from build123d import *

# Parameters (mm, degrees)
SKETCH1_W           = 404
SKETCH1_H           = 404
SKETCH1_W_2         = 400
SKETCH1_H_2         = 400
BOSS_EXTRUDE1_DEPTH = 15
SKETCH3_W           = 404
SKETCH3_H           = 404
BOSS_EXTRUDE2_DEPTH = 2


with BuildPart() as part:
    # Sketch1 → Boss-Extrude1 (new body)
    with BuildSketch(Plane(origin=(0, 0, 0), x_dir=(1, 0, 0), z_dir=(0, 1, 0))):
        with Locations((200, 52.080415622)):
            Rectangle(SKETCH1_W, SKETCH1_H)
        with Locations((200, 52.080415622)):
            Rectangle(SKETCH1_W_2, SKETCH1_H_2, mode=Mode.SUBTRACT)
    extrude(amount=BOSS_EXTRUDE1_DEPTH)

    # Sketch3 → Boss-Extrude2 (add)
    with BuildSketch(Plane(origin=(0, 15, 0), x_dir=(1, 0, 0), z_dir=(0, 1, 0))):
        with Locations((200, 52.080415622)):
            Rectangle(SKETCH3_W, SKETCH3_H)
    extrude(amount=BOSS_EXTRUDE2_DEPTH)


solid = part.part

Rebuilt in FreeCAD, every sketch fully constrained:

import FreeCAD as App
import Part
import Sketcher
from FreeCAD import Vector
Q = App.Units.Quantity

doc = App.newDocument("Part")
body = doc.addObject("PartDesign::Body", "Body")

# Sketch on XZ plane
sketch1 = body.newObject("Sketcher::SketchObject", "Sketch")
sketch1.AttachmentSupport = (doc.getObject("XZ_Plane"), [""])
sketch1.MapMode = "FlatFace"
sketch1.addGeometry(Part.LineSegment(Vector(-2, -254, 0), Vector(-2, 150, 0)), False)
sketch1.addGeometry(Part.LineSegment(Vector(-2, 150, 0), Vector(402, 150, 0)), False)
sketch1.addGeometry(Part.LineSegment(Vector(402, 150, 0), Vector(402, -254, 0)), False)
sketch1.addGeometry(Part.LineSegment(Vector(402, -254, 0), Vector(-2, -254, 0)), False)
sketch1.addGeometry(Part.LineSegment(Vector(400, 148, 0), Vector(0, 148, 0)), False)
sketch1.addGeometry(Part.LineSegment(Vector(0, 148, 0), Vector(0, -252, 0)), False)
sketch1.addGeometry(Part.LineSegment(Vector(0, -252, 0), Vector(400, -252, 0)), False)
sketch1.addGeometry(Part.LineSegment(Vector(400, -252, 0), Vector(400, 148, 0)), False)
sketch1.addConstraint(Sketcher.Constraint("Coincident", 0, 2, 1, 1))
sketch1.addConstraint(Sketcher.Constraint("Coincident", 1, 2, 2, 1))
sketch1.addConstraint(Sketcher.Constraint("Coincident", 2, 2, 3, 1))
sketch1.addConstraint(Sketcher.Constraint("Coincident", 3, 2, 0, 1))
sketch1.addConstraint(Sketcher.Constraint("Coincident", 4, 2, 5, 1))
sketch1.addConstraint(Sketcher.Constraint("Coincident", 5, 2, 6, 1))
sketch1.addConstraint(Sketcher.Constraint("Coincident", 6, 2, 7, 1))
sketch1.addConstraint(Sketcher.Constraint("Coincident", 7, 2, 4, 1))
sketch1.addConstraint(Sketcher.Constraint("Vertical", 0))
sketch1.addConstraint(Sketcher.Constraint("Horizontal", 1))
sketch1.addConstraint(Sketcher.Constraint("Vertical", 2))
sketch1.addConstraint(Sketcher.Constraint("Horizontal", 3))
sketch1.addConstraint(Sketcher.Constraint("Horizontal", 4))
sketch1.addConstraint(Sketcher.Constraint("Vertical", 5))
sketch1.addConstraint(Sketcher.Constraint("Horizontal", 6))
sketch1.addConstraint(Sketcher.Constraint("Vertical", 7))
sketch1.addConstraint(Sketcher.Constraint("PointOnObject", 4, 2, -2))
sketch1.addConstraint(Sketcher.Constraint("Equal", 3, 0))
sketch1.addConstraint(Sketcher.Constraint("Equal", 6, 5))
sketch1.addConstraint(Sketcher.Constraint("DistanceX", 1, 1, 1, 2, Q("404 mm")))
sketch1.addConstraint(Sketcher.Constraint("DistanceX", 4, 2, 4, 1, Q("400 mm")))
sketch1.addConstraint(Sketcher.Constraint("DistanceX", 0, 2, -1, 1, Q("2 mm")))
sketch1.addConstraint(Sketcher.Constraint("DistanceY", 4, 2, 0, 2, Q("2 mm")))
sketch1.addConstraint(Sketcher.Constraint("DistanceY", -1, 1, 0, 2, Q("149.919584 mm")))
pad1 = body.newObject("PartDesign::Pad", "Pad")
pad1.Profile = sketch1
pad1.Length = 15
pad1.Reversed = True

# Sketch on XZ plane
sketch2 = body.newObject("Sketcher::SketchObject", "Sketch001")
sketch2.AttachmentSupport = (doc.getObject("XZ_Plane"), [""])
sketch2.MapMode = "FlatFace"
sketch2.AttachmentOffset = App.Placement(Vector(0, 0, -15), App.Rotation())
sketch2.addGeometry(Part.LineSegment(Vector(-2, -254, 0), Vector(-2, 150, 0)), False)
sketch2.addGeometry(Part.LineSegment(Vector(-2, 150, 0), Vector(402, 150, 0)), False)
sketch2.addGeometry(Part.LineSegment(Vector(402, 150, 0), Vector(402, -254, 0)), False)
sketch2.addGeometry(Part.LineSegment(Vector(402, -254, 0), Vector(-2, -254, 0)), False)
sketch2.addConstraint(Sketcher.Constraint("Coincident", 0, 2, 1, 1))
sketch2.addConstraint(Sketcher.Constraint("Coincident", 1, 2, 2, 1))
sketch2.addConstraint(Sketcher.Constraint("Coincident", 2, 2, 3, 1))
sketch2.addConstraint(Sketcher.Constraint("Coincident", 3, 2, 0, 1))
sketch2.addConstraint(Sketcher.Constraint("Vertical", 0))
sketch2.addConstraint(Sketcher.Constraint("Horizontal", 1))
sketch2.addConstraint(Sketcher.Constraint("Vertical", 2))
sketch2.addConstraint(Sketcher.Constraint("Horizontal", 3))
sketch2.addConstraint(Sketcher.Constraint("Equal", 3, 0))
sketch2.addConstraint(Sketcher.Constraint("DistanceX", 1, 1, 1, 2, Q("404 mm")))
sketch2.addConstraint(Sketcher.Constraint("DistanceX", 0, 2, -1, 1, Q("2 mm")))
sketch2.addConstraint(Sketcher.Constraint("DistanceY", -1, 1, 0, 2, Q("149.919584 mm")))
pad2 = body.newObject("PartDesign::Pad", "Pad001")
pad2.Profile = sketch2
pad2.Length = 2
pad2.Reversed = True

doc.recompute()
